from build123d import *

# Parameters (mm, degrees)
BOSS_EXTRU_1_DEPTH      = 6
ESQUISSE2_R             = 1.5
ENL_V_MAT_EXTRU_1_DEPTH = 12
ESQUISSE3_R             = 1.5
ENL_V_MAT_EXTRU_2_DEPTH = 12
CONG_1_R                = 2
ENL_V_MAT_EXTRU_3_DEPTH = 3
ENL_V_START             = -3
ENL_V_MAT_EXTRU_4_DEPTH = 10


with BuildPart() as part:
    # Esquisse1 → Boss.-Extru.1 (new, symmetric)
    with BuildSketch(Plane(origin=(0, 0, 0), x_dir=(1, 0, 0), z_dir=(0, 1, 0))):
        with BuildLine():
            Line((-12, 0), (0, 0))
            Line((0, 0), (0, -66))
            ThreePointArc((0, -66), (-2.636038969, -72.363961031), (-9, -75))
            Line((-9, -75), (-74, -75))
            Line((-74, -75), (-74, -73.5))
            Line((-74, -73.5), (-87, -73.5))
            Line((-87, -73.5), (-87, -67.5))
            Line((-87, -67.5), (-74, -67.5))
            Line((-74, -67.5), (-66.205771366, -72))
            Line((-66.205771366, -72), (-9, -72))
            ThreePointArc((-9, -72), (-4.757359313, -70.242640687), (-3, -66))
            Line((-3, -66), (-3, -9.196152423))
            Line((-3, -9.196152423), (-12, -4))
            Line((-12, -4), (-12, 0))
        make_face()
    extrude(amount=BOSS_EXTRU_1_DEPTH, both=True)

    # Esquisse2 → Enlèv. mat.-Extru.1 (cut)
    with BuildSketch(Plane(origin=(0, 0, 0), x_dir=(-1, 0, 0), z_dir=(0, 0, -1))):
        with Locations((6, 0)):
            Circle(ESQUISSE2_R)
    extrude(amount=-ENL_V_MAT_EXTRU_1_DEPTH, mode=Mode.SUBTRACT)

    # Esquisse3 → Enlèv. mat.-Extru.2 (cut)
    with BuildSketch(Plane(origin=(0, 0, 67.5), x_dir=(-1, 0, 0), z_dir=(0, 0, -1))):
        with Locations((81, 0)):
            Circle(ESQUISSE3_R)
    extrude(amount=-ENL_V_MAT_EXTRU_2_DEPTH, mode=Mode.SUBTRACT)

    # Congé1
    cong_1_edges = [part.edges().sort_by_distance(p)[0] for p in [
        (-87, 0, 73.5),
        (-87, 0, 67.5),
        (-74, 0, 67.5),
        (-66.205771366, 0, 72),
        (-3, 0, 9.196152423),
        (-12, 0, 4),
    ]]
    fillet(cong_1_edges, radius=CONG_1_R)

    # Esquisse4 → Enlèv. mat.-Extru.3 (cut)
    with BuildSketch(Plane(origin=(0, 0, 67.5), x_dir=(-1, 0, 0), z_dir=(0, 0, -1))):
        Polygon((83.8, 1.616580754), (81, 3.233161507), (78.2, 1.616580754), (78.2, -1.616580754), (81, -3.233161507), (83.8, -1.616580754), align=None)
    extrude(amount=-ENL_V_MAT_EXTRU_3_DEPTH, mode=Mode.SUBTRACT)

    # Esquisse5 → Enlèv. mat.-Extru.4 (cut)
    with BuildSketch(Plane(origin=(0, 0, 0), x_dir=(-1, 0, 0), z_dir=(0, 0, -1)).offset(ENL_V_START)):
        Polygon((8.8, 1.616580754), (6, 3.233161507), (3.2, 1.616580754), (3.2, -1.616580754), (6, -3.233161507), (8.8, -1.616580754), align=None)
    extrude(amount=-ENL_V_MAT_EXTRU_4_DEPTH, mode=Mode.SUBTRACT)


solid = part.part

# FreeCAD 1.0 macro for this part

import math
import FreeCAD as App
import Part
import Sketcher
Q = App.Units.Quantity


def edges_at(feature, points):
    """Names of the edges that pass closest to the given points."""
    edges = feature.Shape.Edges
    near = lambda p: min(range(len(edges)), key=lambda i: edges[i].distToShape(Part.Vertex(*p))[0])
    return sorted({f"Edge{near(p) + 1}" for p in points})


def add_polygon(sketch, points):
    """Adds a closed chain of lines whose ends are joined by coincident constraints."""
    first, n = sketch.GeometryCount, len(points)
    for a, b in zip(points, points[1:] + points[:1]):
        sketch.addGeometry(Part.LineSegment(App.Vector(*a, 0), App.Vector(*b, 0)), False)
    for i in range(n):
        sketch.addConstraint(Sketcher.Constraint("Coincident", first + i, 2, first + (i + 1) % n, 1))

doc = App.newDocument("Part")
params = doc.addObject("Spreadsheet::Sheet", "Params")
for row, (alias, value) in enumerate([
    ("sketch1_radius", "6 mm"),
    ("sketch1_radius2", "9 mm"),
    ("sketch1_width", "12 mm"),
    ("sketch1_width2", "13 mm"),
    ("sketch1_width3", "65 mm"),
    ("pad1_length", "12 mm"),
    ("sketch2_diameter", "3 mm"),
    ("pocket1_length", "12 mm"),
    ("sketch3_diameter", "3 mm"),
    ("pocket2_length", "12 mm"),
    ("fillet_radius", "2 mm"),
    ("pocket3_length", "3 mm"),
    ("pocket4_length", "10 mm"),
], start=1):
    params.set(f"A{row}", alias)
    params.set(f"B{row}", "=" + value)
    params.setAlias(f"B{row}", alias)

body = doc.addObject("PartDesign::Body", "Body")

# Sketch on XZ plane
sketch1 = body.newObject("Sketcher::SketchObject", "Sketch")
sketch1.AttachmentSupport = (doc.getObject("XZ_Plane"), [""])
sketch1.MapMode = "FlatFace"
sketch1.addGeometry([
    Part.LineSegment(App.Vector(0, 0, 0), App.Vector(-12, 0, 0)),  # 0
    Part.LineSegment(App.Vector(-12, 0, 0), App.Vector(-12, 4, 0)),  # 1
    Part.LineSegment(App.Vector(-12, 4, 0), App.Vector(-3, 9.196152, 0)),  # 2
    Part.LineSegment(App.Vector(-3, 9.196152, 0), App.Vector(-3, 66, 0)),  # 3
    Part.ArcOfCircle(Part.Circle(App.Vector(-9, 66, 0), App.Vector(0, 0, 1), 6), math.radians(0), math.radians(90)),  # 4
    Part.LineSegment(App.Vector(-9, 72, 0), App.Vector(-66.205771, 72, 0)),  # 5
    Part.LineSegment(App.Vector(-66.205771, 72, 0), App.Vector(-74, 67.5, 0)),  # 6
    Part.LineSegment(App.Vector(-74, 67.5, 0), App.Vector(-87, 67.5, 0)),  # 7
    Part.LineSegment(App.Vector(-87, 67.5, 0), App.Vector(-87, 73.5, 0)),  # 8
    Part.LineSegment(App.Vector(-87, 73.5, 0), App.Vector(-74, 73.5, 0)),  # 9
    Part.LineSegment(App.Vector(-74, 73.5, 0), App.Vector(-74, 75, 0)),  # 10
    Part.LineSegment(App.Vector(-74, 75, 0), App.Vector(-9, 75, 0)),  # 11
    Part.ArcOfCircle(Part.Circle(App.Vector(-9, 66, 0), App.Vector(0, 0, 1), 9), math.radians(0), math.radians(90)),  # 12
    Part.LineSegment(App.Vector(0, 66, 0), App.Vector(0, 0, 0)),  # 13
], False)
sketch1.addConstraint([
    Sketcher.Constraint("Coincident", 0, 2, 1, 1),
    Sketcher.Constraint("Coincident", 1, 2, 2, 1),
    Sketcher.Constraint("Coincident", 2, 2, 3, 1),
    Sketcher.Constraint("Tangent", 3, 2, 4, 1),
    Sketcher.Constraint("Tangent", 4, 2, 5, 1),
    Sketcher.Constraint("Coincident", 5, 2, 6, 1),
    Sketcher.Constraint("Coincident", 6, 2, 7, 1),
    Sketcher.Constraint("Coincident", 7, 2, 8, 1),
    Sketcher.Constraint("Coincident", 8, 2, 9, 1),
    Sketcher.Constraint("Coincident", 9, 2, 10, 1),
    Sketcher.Constraint("Coincident", 10, 2, 11, 1),
    Sketcher.Constraint("Tangent", 11, 2, 12, 2),
    Sketcher.Constraint("Tangent", 12, 1, 13, 1),
    Sketcher.Constraint("Coincident", 13, 2, 0, 1),
    Sketcher.Constraint("Horizontal", 0),
    Sketcher.Constraint("Vertical", 1),
    Sketcher.Constraint("Vertical", 3),
    Sketcher.Constraint("Horizontal", 5),
    Sketcher.Constraint("Horizontal", 7),
    Sketcher.Constraint("Vertical", 8),
    Sketcher.Constraint("Horizontal", 9),
    Sketcher.Constraint("Vertical", 10),
    Sketcher.Constraint("Horizontal", 11),
    Sketcher.Constraint("Vertical", 13),
    Sketcher.Constraint("Coincident", 13, 2, -1, 1),
    Sketcher.Constraint("Coincident", 12, 3, 4, 3),
    Sketcher.Constraint("Parallel", 2, 6),
    Sketcher.Constraint("Vertical", 6, 2, 9, 2),
    Sketcher.Constraint("Radius", 4, Q("6 mm")),
    Sketcher.Constraint("Radius", 12, Q("9 mm")),
    Sketcher.Constraint("DistanceX", 0, 2, 0, 1, Q("12 mm")),
    Sketcher.Constraint("DistanceX", 7, 2, 7, 1, Q("13 mm")),
    Sketcher.Constraint("DistanceX", 11, 1, 11, 2, Q("65 mm")),
    Sketcher.Constraint("DistanceY", 1, 1, 1, 2, Q("4 mm")),
    Sketcher.Constraint("DistanceY", 8, 1, 8, 2, Q("6 mm")),
    Sketcher.Constraint("DistanceY", 13, 2, 13, 1, Q("66 mm")),
    Sketcher.Constraint("Angle", 2, Q("30 deg")),
    Sketcher.Constraint("Distance", 6, Q("9 mm")),
])
sketch1.setExpression("Constraints[28]", "Params.sketch1_radius")
sketch1.setExpression("Constraints[29]", "Params.sketch1_radius2")
sketch1.setExpression("Constraints[30]", "Params.sketch1_width")
sketch1.setExpression("Constraints[31]", "Params.sketch1_width2")
sketch1.setExpression("Constraints[32]", "Params.sketch1_width3")
pad1 = body.newObject("PartDesign::Pad", "Pad")
pad1.Profile = sketch1
pad1.setExpression("Length", "Params.pad1_length")
pad1.Midplane = True

# Sketch on XY plane
sketch2 = body.newObject("Sketcher::SketchObject", "Sketch001")
sketch2.AttachmentSupport = (doc.getObject("XY_Plane"), [""])
sketch2.MapMode = "FlatFace"
sketch2.addGeometry(Part.Circle(App.Vector(-6, 0, 0), App.Vector(0, 0, 1), 1.5), False)
sketch2.addConstraint([
    Sketcher.Constraint("PointOnObject", 0, 3, -1),
    Sketcher.Constraint("Diameter", 0, Q("3 mm")),
    Sketcher.Constraint("DistanceX", 0, 3, -1, 1, Q("6 mm")),
])
sketch2.setExpression("Constraints[1]", "Params.sketch2_diameter")
pocket1 = body.newObject("PartDesign::Pocket", "Pocket")
pocket1.Profile = sketch2
pocket1.setExpression("Length", "Params.pocket1_length")
pocket1.Reversed = True

# Sketch on XY plane
sketch3 = body.newObject("Sketcher::SketchObject", "Sketch002")
sketch3.AttachmentSupport = (doc.getObject("XY_Plane"), [""])
sketch3.MapMode = "FlatFace"
sketch3.AttachmentOffset = App.Placement(App.Vector(0, 0, 67.5), App.Rotation())
sketch3.addGeometry(Part.Circle(App.Vector(-81, 0, 0), App.Vector(0, 0, 1), 1.5), False)
sketch3.addConstraint([
    Sketcher.Constraint("PointOnObject", 0, 3, -1),
    Sketcher.Constraint("Diameter", 0, Q("3 mm")),
    Sketcher.Constraint("DistanceX", 0, 3, -1, 1, Q("81 mm")),
])
sketch3.setExpression("Constraints[1]", "Params.sketch3_diameter")
pocket2 = body.newObject("PartDesign::Pocket", "Pocket001")
pocket2.Profile = sketch3
pocket2.setExpression("Length", "Params.pocket2_length")
pocket2.Reversed = True
doc.recompute()

fillet = body.newObject("PartDesign::Fillet", "Fillet")
fillet.Base = (pocket2, edges_at(pocket2, [
    (-87, 0, 73.5),
    (-87, 0, 67.5),
    (-74, 0, 67.5),
    (-66.206, 0, 72),
    (-3, 0, 9.196),
    (-12, 0, 4),
]))
fillet.setExpression("Radius", "Params.fillet_radius")

# Sketch on XY plane
sketch4 = body.newObject("Sketcher::SketchObject", "Sketch003")
sketch4.AttachmentSupport = (doc.getObject("XY_Plane"), [""])
sketch4.MapMode = "FlatFace"
sketch4.AttachmentOffset = App.Placement(App.Vector(0, 0, 67.5), App.Rotation())
add_polygon(sketch4, [(-83.8, 1.616581), (-81, 3.233162), (-78.2, 1.616581), (-78.2, -1.616581), (-81, -3.233162), (-83.8, -1.616581)])  # lines 0-5
sketch4.addConstraint([
    Sketcher.Constraint("Vertical", 2),
    Sketcher.Constraint("Vertical", 5),
    Sketcher.Constraint("Symmetric", 0, 2, 3, 2, -1),
    Sketcher.Constraint("Parallel", 0, 3),
    Sketcher.Constraint("Parallel", 1, 4),
    Sketcher.Constraint("Horizontal", 2, 2, 4, 2),
    Sketcher.Constraint("Horizontal", 1, 2, 5, 2),
    Sketcher.Constraint("Angle", 0, Q("30 deg")),
    Sketcher.Constraint("DistanceX", 0, 2, -1, 1, Q("81 mm")),
    Sketcher.Constraint("DistanceX", 1, 2, -1, 1, Q("78.2 mm")),
    Sketcher.Constraint("DistanceY", 2, 2, 2, 1, Q("3.233162 mm")),
])
pocket3 = body.newObject("PartDesign::Pocket", "Pocket002")
pocket3.Profile = sketch4
pocket3.setExpression("Length", "Params.pocket3_length")
pocket3.Reversed = True

# Sketch on XY plane
sketch5 = body.newObject("Sketcher::SketchObject", "Sketch004")
sketch5.AttachmentSupport = (doc.getObject("XY_Plane"), [""])
sketch5.MapMode = "FlatFace"
sketch5.AttachmentOffset = App.Placement(App.Vector(0, 0, 3), App.Rotation())
add_polygon(sketch5, [(-8.8, 1.616581), (-6, 3.233162), (-3.2, 1.616581), (-3.2, -1.616581), (-6, -3.233162), (-8.8, -1.616581)])  # lines 0-5
sketch5.addConstraint([
    Sketcher.Constraint("Vertical", 2),
    Sketcher.Constraint("Vertical", 5),
    Sketcher.Constraint("Symmetric", 0, 2, 3, 2, -1),
    Sketcher.Constraint("Parallel", 0, 3),
    Sketcher.Constraint("Parallel", 1, 4),
    Sketcher.Constraint("Horizontal", 2, 2, 4, 2),
    Sketcher.Constraint("Horizontal", 1, 2, 5, 2),
    Sketcher.Constraint("Angle", 0, Q("30 deg")),
    Sketcher.Constraint("DistanceX", 0, 2, -1, 1, Q("6 mm")),
    Sketcher.Constraint("DistanceX", 1, 2, -1, 1, Q("3.2 mm")),
    Sketcher.Constraint("DistanceY", 2, 2, 2, 1, Q("3.233162 mm")),
])
pocket4 = body.newObject("PartDesign::Pocket", "Pocket003")
pocket4.Profile = sketch5
pocket4.setExpression("Length", "Params.pocket4_length")
pocket4.Reversed = True

doc.recompute()
